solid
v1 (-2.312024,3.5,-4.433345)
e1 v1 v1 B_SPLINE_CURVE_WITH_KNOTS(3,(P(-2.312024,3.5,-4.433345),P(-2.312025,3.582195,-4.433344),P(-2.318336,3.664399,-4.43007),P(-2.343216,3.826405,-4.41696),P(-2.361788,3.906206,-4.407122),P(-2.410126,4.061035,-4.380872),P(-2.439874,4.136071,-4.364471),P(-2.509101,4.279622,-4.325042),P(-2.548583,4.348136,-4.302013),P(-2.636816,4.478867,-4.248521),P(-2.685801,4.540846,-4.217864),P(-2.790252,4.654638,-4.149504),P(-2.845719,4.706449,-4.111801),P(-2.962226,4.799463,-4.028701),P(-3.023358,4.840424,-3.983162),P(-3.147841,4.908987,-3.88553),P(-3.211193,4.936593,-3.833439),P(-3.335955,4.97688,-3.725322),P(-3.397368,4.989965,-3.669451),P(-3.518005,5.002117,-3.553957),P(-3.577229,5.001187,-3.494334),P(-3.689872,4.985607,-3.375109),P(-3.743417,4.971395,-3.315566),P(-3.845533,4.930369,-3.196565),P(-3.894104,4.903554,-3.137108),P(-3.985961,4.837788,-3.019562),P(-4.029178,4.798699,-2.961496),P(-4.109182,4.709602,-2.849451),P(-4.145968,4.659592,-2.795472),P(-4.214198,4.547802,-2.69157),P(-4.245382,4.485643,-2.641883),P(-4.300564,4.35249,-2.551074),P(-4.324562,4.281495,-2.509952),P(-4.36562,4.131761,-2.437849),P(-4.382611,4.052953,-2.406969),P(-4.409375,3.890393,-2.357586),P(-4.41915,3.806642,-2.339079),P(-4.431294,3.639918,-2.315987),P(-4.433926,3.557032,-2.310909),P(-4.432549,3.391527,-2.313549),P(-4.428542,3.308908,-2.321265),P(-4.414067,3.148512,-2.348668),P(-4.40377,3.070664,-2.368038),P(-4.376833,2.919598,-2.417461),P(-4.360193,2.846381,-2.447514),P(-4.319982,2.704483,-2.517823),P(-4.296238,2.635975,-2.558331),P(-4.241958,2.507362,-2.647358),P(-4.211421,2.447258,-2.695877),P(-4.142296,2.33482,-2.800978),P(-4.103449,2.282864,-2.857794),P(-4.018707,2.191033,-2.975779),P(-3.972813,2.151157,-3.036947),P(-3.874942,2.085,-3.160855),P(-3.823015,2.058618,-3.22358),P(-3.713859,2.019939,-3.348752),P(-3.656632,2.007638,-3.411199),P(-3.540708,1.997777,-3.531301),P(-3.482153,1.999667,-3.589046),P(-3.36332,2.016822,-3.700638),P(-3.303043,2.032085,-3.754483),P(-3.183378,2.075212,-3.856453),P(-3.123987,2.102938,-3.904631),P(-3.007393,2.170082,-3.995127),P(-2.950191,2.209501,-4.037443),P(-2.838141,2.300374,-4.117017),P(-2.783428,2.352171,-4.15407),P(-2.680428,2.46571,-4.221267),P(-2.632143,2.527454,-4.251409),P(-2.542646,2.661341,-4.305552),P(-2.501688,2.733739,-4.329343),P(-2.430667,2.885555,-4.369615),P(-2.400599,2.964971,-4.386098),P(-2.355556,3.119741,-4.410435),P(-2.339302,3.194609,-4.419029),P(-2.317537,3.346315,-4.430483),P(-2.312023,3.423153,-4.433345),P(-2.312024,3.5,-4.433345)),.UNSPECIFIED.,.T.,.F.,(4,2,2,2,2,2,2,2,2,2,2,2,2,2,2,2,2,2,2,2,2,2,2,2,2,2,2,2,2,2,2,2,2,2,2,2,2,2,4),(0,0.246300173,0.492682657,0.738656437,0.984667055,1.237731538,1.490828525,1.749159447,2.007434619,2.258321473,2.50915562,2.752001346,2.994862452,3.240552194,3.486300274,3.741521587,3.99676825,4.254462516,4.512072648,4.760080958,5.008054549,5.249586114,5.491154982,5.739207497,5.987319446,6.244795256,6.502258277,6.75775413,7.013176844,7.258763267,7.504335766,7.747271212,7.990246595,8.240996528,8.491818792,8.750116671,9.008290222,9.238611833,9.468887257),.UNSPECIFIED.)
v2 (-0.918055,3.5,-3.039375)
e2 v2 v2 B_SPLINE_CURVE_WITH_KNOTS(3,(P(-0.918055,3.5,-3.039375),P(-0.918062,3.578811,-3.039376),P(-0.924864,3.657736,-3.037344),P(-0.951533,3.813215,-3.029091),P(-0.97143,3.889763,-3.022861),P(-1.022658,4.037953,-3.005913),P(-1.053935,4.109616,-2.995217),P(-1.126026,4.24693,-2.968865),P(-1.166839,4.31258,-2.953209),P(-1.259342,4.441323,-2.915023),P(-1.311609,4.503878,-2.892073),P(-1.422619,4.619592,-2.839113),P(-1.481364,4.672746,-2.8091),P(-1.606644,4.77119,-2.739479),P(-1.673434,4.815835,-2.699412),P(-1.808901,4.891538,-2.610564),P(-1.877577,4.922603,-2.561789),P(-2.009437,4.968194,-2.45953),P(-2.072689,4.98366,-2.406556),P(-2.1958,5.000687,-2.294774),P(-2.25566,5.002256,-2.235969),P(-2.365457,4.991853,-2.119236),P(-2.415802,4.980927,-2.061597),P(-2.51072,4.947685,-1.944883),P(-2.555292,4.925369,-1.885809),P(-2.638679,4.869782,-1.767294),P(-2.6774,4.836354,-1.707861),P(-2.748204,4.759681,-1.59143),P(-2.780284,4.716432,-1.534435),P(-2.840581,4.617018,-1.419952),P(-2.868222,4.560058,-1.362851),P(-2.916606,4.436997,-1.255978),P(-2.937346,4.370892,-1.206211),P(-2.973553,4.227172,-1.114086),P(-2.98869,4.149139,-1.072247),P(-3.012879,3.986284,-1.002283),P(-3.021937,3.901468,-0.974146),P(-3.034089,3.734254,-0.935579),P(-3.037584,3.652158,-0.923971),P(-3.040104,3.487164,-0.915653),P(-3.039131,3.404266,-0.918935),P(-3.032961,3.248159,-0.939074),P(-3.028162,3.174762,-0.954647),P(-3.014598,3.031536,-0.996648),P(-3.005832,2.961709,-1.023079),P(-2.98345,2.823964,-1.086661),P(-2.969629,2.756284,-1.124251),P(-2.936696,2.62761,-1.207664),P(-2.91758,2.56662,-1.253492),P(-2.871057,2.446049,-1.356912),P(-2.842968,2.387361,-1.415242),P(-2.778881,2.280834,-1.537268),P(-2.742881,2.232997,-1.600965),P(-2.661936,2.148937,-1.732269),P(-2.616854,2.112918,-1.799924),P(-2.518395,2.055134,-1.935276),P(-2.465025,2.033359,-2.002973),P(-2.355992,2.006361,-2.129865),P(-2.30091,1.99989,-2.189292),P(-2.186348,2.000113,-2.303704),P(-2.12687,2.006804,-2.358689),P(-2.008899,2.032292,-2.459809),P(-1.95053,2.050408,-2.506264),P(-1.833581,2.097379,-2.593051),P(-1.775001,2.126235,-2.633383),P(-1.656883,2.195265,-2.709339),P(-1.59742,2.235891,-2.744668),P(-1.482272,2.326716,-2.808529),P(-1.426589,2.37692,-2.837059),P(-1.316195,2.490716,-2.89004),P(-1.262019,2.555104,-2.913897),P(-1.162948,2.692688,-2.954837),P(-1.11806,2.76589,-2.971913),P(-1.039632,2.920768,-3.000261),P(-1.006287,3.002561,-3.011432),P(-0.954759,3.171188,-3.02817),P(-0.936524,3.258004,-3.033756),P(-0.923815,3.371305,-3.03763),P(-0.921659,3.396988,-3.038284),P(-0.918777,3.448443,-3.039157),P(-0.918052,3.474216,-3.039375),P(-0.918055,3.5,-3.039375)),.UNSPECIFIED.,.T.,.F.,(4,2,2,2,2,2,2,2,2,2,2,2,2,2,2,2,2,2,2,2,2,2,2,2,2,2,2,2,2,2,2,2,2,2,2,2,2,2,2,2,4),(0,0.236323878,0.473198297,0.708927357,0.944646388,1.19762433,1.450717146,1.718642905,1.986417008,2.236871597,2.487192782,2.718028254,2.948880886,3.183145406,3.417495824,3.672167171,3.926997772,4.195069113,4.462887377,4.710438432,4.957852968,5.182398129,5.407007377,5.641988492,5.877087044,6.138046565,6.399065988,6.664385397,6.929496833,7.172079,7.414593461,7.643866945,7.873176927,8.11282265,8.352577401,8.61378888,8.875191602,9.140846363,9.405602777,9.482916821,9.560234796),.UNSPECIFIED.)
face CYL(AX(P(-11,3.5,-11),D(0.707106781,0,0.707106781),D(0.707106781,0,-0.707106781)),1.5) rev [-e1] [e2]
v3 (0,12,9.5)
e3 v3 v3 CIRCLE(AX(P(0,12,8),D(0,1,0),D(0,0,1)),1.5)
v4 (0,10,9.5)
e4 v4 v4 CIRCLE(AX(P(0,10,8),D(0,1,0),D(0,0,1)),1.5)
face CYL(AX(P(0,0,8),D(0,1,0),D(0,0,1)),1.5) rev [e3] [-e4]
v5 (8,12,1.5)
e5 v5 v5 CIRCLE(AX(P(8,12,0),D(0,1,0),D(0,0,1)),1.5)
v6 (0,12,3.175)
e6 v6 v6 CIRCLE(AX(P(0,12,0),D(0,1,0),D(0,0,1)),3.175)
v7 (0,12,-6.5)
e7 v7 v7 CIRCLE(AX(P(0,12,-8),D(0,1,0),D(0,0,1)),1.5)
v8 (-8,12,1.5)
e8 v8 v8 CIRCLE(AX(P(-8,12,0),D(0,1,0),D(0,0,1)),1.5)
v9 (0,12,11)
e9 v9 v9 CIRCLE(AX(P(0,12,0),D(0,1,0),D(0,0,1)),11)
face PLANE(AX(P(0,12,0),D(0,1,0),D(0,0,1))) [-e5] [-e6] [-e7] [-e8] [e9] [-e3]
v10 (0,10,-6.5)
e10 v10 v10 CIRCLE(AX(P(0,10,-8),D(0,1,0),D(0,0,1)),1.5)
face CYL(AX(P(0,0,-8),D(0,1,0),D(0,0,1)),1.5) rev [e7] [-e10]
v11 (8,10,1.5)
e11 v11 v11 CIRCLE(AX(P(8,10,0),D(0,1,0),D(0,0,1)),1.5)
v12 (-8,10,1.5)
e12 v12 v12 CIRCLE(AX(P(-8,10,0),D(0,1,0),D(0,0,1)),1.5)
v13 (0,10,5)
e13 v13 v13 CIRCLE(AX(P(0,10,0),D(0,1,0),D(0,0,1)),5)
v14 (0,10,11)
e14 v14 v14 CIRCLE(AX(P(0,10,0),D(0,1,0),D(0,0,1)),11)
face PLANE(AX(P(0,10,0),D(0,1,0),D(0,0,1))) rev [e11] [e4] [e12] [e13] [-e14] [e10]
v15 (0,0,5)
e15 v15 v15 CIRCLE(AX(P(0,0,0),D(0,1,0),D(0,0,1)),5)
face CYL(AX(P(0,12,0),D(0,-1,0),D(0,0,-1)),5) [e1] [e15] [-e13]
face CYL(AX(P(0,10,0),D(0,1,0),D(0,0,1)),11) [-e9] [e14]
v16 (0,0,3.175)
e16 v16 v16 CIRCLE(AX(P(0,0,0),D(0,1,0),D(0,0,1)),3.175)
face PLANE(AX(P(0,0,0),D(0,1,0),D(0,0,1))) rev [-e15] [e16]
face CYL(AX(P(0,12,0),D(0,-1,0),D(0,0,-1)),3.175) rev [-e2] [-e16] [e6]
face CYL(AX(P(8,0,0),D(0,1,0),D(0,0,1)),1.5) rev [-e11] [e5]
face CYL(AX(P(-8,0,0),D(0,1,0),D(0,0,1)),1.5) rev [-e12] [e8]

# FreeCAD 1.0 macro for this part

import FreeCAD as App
import Part
import Sketcher
Q = App.Units.Quantity

doc = App.newDocument("Part")
body = doc.addObject("PartDesign::Body", "Body")

# Sketch on XZ plane
sketch1 = body.newObject("Sketcher::SketchObject", "Sketch")
sketch1.AttachmentSupport = (doc.getObject("XZ_Plane"), [""])
sketch1.MapMode = "FlatFace"
sketch1.addGeometry(Part.Circle(App.Vector(0, 0, 0), App.Vector(0, 0, 1), 5), False)
sketch1.addGeometry(Part.Circle(App.Vector(0, 0, 0), App.Vector(0, 0, 1), 3.2), False)
sketch1.addConstraint(Sketcher.Constraint("Coincident", 0, 3, -1, 1))
sketch1.addConstraint(Sketcher.Constraint("Coincident", 1, 3, -1, 1))
sketch1.addConstraint(Sketcher.Constraint("Diameter", 0, Q("10 mm")))
sketch1.addConstraint(Sketcher.Constraint("Diameter", 1, Q("6.35 mm")))
pad1 = body.newObject("PartDesign::Pad", "Pad")
pad1.Profile = sketch1
pad1.Length = 12
pad1.Reversed = True

# Sketch on XZ plane
sketch2 = body.newObject("Sketcher::SketchObject", "Sketch001")
sketch2.AttachmentSupport = (doc.getObject("XZ_Plane"), [""])
sketch2.MapMode = "FlatFace"
sketch2.AttachmentOffset = App.Placement(App.Vector(0, 0, -12), App.Rotation())
sketch2.addGeometry(Part.Circle(App.Vector(0, 0, 0), App.Vector(0, 0, 1), 11), False)
sketch2.addGeometry(Part.Circle(App.Vector(0, 0, 0), App.Vector(0, 0, 1), 3.2), False)
sketch2.addConstraint(Sketcher.Constraint("Coincident", 0, 3, -1, 1))
sketch2.addConstraint(Sketcher.Constraint("Coincident", 1, 3, -1, 1))
sketch2.addConstraint(Sketcher.Constraint("Diameter", 0, Q("22 mm")))
sketch2.addConstraint(Sketcher.Constraint("Diameter", 1, Q("6.35 mm")))
pad2 = body.newObject("PartDesign::Pad", "Pad001")
pad2.Profile = sketch2
pad2.Length = 2

# Sketch on XZ plane
sketch3 = body.newObject("Sketcher::SketchObject", "Sketch002")
sketch3.AttachmentSupport = (doc.getObject("XZ_Plane"), [""])
sketch3.MapMode = "FlatFace"
sketch3.AttachmentOffset = App.Placement(App.Vector(0, 0, -12), App.Rotation())
sketch3.addGeometry(Part.Circle(App.Vector(0, -8, 0), App.Vector(0, 0, 1), 1.5), False)
sketch3.addGeometry(Part.Circle(App.Vector(8, 0, 0), App.Vector(0, 0, 1), 1.5), False)
sketch3.addGeometry(Part.Circle(App.Vector(0, 8, 0), App.Vector(0, 0, 1), 1.5), False)
sketch3.addGeometry(Part.Circle(App.Vector(-8, 0, 0), App.Vector(0, 0, 1), 1.5), False)
sketch3.addConstraint(Sketcher.Constraint("Equal", 0, 1))
sketch3.addConstraint(Sketcher.Constraint("Equal", 1, 2))
sketch3.addConstraint(Sketcher.Constraint("Equal", 2, 3))
sketch3.addConstraint(Sketcher.Constraint("Symmetric", 0, 3, 2, 3, -1, 1))
sketch3.addConstraint(Sketcher.Constraint("Symmetric", 1, 3, 3, 3, -1, 1))
sketch3.addConstraint(Sketcher.Constraint("PointOnObject", 0, 3, -2))
sketch3.addConstraint(Sketcher.Constraint("PointOnObject", 1, 3, -1))
sketch3.addConstraint(Sketcher.Constraint("Diameter", 0, Q("3 mm")))
sketch3.addConstraint(Sketcher.Constraint("DistanceY", 0, 3, -1, 1, Q("8 mm")))
sketch3.addConstraint(Sketcher.Constraint("DistanceX", -1, 1, 1, 3, Q("8 mm")))
pocket1 = body.newObject("PartDesign::Pocket", "Pocket")
pocket1.Profile = sketch3
pocket1.Type = "ThroughAll"
pocket1.Reversed = True

# Sketch on an angled plane
sketch4 = body.newObject("Sketcher::SketchObject", "Sketch003")
sketch4.Placement = App.Placement(App.Vector(0, 0, 0), App.Rotation(App.Vector(0, 1, 0), App.Vector(-0.707106781, 0, 0.707106781), App.Vector(0.707106781, 0, 0.707106781), "ZXY"))
sketch4.addGeometry(Part.Circle(App.Vector(3.5, 0, 0), App.Vector(0, 0, 1), 1.5), False)
sketch4.addConstraint(Sketcher.Constraint("PointOnObject", 0, 3, -1))
sketch4.addConstraint(Sketcher.Constraint("Diameter", 0, Q("3 mm")))
sketch4.addConstraint(Sketcher.Constraint("DistanceX", -1, 1, 0, 3, Q("3.5 mm")))
pocket2 = body.newObject("PartDesign::Pocket", "Pocket001")
pocket2.Profile = sketch4
pocket2.Type = "ThroughAll"

doc.recompute()
